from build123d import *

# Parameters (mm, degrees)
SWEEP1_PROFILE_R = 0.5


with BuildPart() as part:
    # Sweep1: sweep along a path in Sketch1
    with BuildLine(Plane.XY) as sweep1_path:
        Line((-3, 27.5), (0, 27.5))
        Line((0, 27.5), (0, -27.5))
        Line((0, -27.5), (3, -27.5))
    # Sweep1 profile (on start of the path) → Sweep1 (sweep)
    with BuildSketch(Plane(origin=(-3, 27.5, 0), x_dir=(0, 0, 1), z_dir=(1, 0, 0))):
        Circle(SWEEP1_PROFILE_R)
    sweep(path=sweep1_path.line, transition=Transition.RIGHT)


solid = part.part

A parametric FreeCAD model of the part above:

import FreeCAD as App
import Part
import Sketcher

V = App.Vector

doc = App.newDocument("Part")
params = doc.addObject("Spreadsheet::Sheet", "Params")
for row, (alias, value) in enumerate([
    ("sketch1_diameter", "1 mm"),
    ("sketch2_width", "3 mm"),
    ("sketch2_height", "55 mm"),
], start=1):
    params.set(f"A{row}", alias)
    params.set(f"B{row}", "=" + value)
    params.setAlias(f"B{row}", alias)

body = doc.addObject("PartDesign::Body", "Body")

# Sketch on YZ plane
sketch1 = doc.addObject("Sketcher::SketchObject", "Sketch")
body.addObject(sketch1)
sketch1.AttachmentSupport = (doc.YZ_Plane, [""])
sketch1.MapMode = "FlatFace"
sketch1.AttachmentOffset = App.Placement(V(0, 0, -3), App.Rotation())
sketch1.addGeometry(Part.Circle(V(27.5, 0, 0), V(0, 0, 1), 0.5), False)
sketch1.addConstraint(Sketcher.Constraint("PointOnObject", 0, 3, -1))
sketch1.addConstraint(Sketcher.Constraint("Diameter", 0, 1.0))
sketch1.addConstraint(Sketcher.Constraint("DistanceX", -1, 1, 0, 3, 27.5))
sketch1.setExpression("Constraints[1]", "Params.sketch1_diameter")

# Sketch on XY plane
sketch2 = doc.addObject("Sketcher::SketchObject", "Sketch001")
body.addObject(sketch2)
sketch2.AttachmentSupport = (doc.XY_Plane, [""])
sketch2.MapMode = "FlatFace"
sketch2.addGeometry(Part.LineSegment(V(-3, 27.5, 0), V(0, 27.5, 0)), False)
sketch2.addGeometry(Part.LineSegment(V(0, 27.5, 0), V(0, -27.5, 0)), False)
sketch2.addGeometry(Part.LineSegment(V(0, -27.5, 0), V(3, -27.5, 0)), False)
sketch2.addConstraint(Sketcher.Constraint("Coincident", 0, 2, 1, 1))
sketch2.addConstraint(Sketcher.Constraint("Coincident", 1, 2, 2, 1))
sketch2.addConstraint(Sketcher.Constraint("Horizontal", 0))
sketch2.addConstraint(Sketcher.Constraint("Vertical", 1))
sketch2.addConstraint(Sketcher.Constraint("Horizontal", 2))
sketch2.addConstraint(Sketcher.Constraint("Symmetric", 0, 2, 1, 2, -1, 1))
sketch2.addConstraint(Sketcher.Constraint("Equal", 0, 2))
sketch2.addConstraint(Sketcher.Constraint("DistanceX", 0, 1, 0, 2, 3.0))
sketch2.addConstraint(Sketcher.Constraint("DistanceY", 1, 2, 1, 1, 55.0))
sketch2.setExpression("Constraints[7]", "Params.sketch2_width")
sketch2.setExpression("Constraints[8]", "Params.sketch2_height")
doc.recompute()

additivepipe = doc.addObject("PartDesign::AdditivePipe", "AdditivePipe")
body.addObject(additivepipe)
additivepipe.Profile = sketch1
additivepipe.Spine = (sketch2, ["Edge1", "Edge2", "Edge3"])
additivepipe.Transition = "Right corner"

doc.recompute()
